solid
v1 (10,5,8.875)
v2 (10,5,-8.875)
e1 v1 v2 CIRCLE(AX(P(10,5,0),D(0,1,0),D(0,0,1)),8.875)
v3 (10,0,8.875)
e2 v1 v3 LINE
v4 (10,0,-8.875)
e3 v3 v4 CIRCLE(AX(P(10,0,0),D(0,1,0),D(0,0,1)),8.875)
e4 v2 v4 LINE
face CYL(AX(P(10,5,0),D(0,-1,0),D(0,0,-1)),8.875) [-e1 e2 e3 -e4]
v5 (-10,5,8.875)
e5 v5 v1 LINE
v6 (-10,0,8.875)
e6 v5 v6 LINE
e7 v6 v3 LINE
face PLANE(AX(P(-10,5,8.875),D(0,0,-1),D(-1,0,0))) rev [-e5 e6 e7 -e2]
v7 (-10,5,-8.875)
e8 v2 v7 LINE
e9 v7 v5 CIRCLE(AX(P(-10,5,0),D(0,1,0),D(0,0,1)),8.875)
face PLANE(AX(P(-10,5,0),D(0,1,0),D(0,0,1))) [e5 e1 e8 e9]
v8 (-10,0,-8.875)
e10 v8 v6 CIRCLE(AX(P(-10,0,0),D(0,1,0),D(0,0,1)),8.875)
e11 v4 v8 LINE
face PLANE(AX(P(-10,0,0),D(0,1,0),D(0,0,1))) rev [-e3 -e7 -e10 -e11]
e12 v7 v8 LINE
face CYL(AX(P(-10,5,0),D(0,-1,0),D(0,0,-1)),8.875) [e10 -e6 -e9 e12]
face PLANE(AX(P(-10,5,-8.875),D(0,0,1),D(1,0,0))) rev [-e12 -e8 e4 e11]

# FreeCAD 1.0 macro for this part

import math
import FreeCAD as App
import Part
import Sketcher

doc = App.newDocument("Part")
body = doc.addObject("PartDesign::Body", "Body")

# Sketch on XZ plane
sketch1 = body.newObject("Sketcher::SketchObject", "Sketch")
sketch1.AttachmentSupport = (doc.getObject("XZ_Plane"), [""])
sketch1.MapMode = "FlatFace"
sketch1.addGeometry(Part.LineSegment(App.Vector(10, -9, 0), App.Vector(-10, -9, 0)), False)
sketch1.addGeometry(Part.ArcOfCircle(Part.Circle(App.Vector(-10, 0, 0), App.Vector(0, 0, 1), 9), math.radians(90), math.radians(270)), False)
sketch1.addGeometry(Part.LineSegment(App.Vector(-10, 9, 0), App.Vector(10, 9, 0)), False)
sketch1.addGeometry(Part.ArcOfCircle(Part.Circle(App.Vector(10, 0, 0), App.Vector(0, 0, 1), 9), math.radians(-90), math.radians(90)), False)
sketch1.addConstraint(Sketcher.Constraint("Tangent", 0, 2, 1, 2))
sketch1.addConstraint(Sketcher.Constraint("Tangent", 1, 1, 2, 1))
sketch1.addConstraint(Sketcher.Constraint("Tangent", 2, 2, 3, 2))
sketch1.addConstraint(Sketcher.Constraint("Tangent", 3, 1, 0, 1))
sketch1.addConstraint(Sketcher.Constraint("Horizontal", 0))
sketch1.addConstraint(Sketcher.Constraint("Horizontal", 2))
sketch1.addConstraint(Sketcher.Constraint("Symmetric", 1, 3, 3, 3, -1, 1))
sketch1.addConstraint(Sketcher.Constraint("DistanceX", 0, 2, 0, 1, 20.0))
sketch1.addConstraint(Sketcher.Constraint("Radius", 1, 8.875))
pad1 = body.newObject("PartDesign::Pad", "Pad")
pad1.Profile = sketch1
pad1.Length = 5
pad1.Reversed = True

doc.recompute()
